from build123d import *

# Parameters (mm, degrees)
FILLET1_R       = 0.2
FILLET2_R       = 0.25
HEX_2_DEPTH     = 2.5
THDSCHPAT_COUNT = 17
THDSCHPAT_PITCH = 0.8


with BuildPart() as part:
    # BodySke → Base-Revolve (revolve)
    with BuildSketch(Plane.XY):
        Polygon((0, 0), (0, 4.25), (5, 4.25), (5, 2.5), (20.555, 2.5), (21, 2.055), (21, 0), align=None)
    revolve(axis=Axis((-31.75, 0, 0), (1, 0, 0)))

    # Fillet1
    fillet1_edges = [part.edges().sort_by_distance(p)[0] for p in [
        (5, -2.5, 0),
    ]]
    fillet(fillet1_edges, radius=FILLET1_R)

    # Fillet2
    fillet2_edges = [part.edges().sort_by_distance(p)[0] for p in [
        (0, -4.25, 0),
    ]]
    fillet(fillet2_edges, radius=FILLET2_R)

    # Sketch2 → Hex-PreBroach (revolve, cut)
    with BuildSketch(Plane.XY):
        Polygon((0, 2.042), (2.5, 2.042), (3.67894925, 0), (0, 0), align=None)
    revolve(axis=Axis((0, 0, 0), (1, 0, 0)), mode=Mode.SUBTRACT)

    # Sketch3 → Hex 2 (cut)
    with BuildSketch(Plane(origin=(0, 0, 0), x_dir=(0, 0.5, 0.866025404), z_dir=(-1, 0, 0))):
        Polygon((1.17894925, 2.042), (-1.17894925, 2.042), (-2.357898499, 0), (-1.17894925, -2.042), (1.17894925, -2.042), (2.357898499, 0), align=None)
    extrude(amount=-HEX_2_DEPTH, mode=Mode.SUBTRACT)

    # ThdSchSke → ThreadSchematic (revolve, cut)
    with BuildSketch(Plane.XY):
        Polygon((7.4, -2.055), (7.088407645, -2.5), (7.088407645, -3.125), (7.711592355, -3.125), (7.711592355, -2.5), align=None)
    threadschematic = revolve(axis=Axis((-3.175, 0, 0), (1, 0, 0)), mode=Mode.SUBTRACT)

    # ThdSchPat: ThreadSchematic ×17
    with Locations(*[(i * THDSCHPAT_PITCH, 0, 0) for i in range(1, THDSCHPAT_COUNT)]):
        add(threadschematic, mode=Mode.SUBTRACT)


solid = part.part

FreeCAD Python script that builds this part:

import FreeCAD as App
import Part
import Sketcher

V = App.Vector
Q = App.Units.Quantity


def edges_at(feature, points):
    """Names of the edges that pass closest to the given points."""
    edges = feature.Shape.Edges
    near = lambda p: min(range(len(edges)), key=lambda i: edges[i].distToShape(Part.Vertex(*p))[0])
    return sorted({f"Edge{near(p) + 1}" for p in points})

doc = App.newDocument("Part")
params = doc.addObject("Spreadsheet::Sheet", "Params")
for row, (alias, value) in enumerate([
    ("sketch1_width", "21 mm"),
    ("sketch1_width2", "5 mm"),
    ("sketch1_height", "4.25 mm"),
    ("sketch1_height2", "1.75 mm"),
    ("revolution_angle", "360 deg"),
    ("fillet_radius", "0.2 mm"),
    ("fillet2_radius", "0.25 mm"),
    ("sketch2_width", "2.5 mm"),
    ("groove_angle", "360 deg"),
    ("pocket1_length", "2.5 mm"),
    ("groove2_angle", "360 deg"),
    ("linearpattern_pitch", "0.8 mm"),
], start=1):
    params.set(f"A{row}", alias)
    params.set(f"B{row}", "=" + value)
    params.setAlias(f"B{row}", alias)

body = doc.addObject("PartDesign::Body", "Body")

sketch1 = body.newObject("Sketcher::SketchObject", "Sketch")
sketch1.AttachmentSupport = (doc.getObject("XY_Plane"), [""])
sketch1.MapMode = "FlatFace"
sketch1.addGeometry(Part.LineSegment(V(0, 4.2, 0), V(0, 0, 0)), False)
sketch1.addGeometry(Part.LineSegment(V(0, 0, 0), V(21, 0, 0)), False)
sketch1.addGeometry(Part.LineSegment(V(21, 0, 0), V(21, 2.1, 0)), False)
sketch1.addGeometry(Part.LineSegment(V(21, 2.1, 0), V(20.6, 2.5, 0)), False)
sketch1.addGeometry(Part.LineSegment(V(20.6, 2.5, 0), V(5, 2.5, 0)), False)
sketch1.addGeometry(Part.LineSegment(V(5, 2.5, 0), V(5, 4.2, 0)), False)
sketch1.addGeometry(Part.LineSegment(V(5, 4.2, 0), V(0, 4.2, 0)), False)
sketch1.addConstraint(Sketcher.Constraint("Coincident", 0, 2, 1, 1))
sketch1.addConstraint(Sketcher.Constraint("Coincident", 1, 2, 2, 1))
sketch1.addConstraint(Sketcher.Constraint("Coincident", 2, 2, 3, 1))
sketch1.addConstraint(Sketcher.Constraint("Coincident", 3, 2, 4, 1))
sketch1.addConstraint(Sketcher.Constraint("Coincident", 4, 2, 5, 1))
sketch1.addConstraint(Sketcher.Constraint("Coincident", 5, 2, 6, 1))
sketch1.addConstraint(Sketcher.Constraint("Coincident", 6, 2, 0, 1))
sketch1.addConstraint(Sketcher.Constraint("Vertical", 0))
sketch1.addConstraint(Sketcher.Constraint("Horizontal", 1))
sketch1.addConstraint(Sketcher.Constraint("Vertical", 2))
sketch1.addConstraint(Sketcher.Constraint("Horizontal", 4))
sketch1.addConstraint(Sketcher.Constraint("Vertical", 5))
sketch1.addConstraint(Sketcher.Constraint("Horizontal", 6))
sketch1.addConstraint(Sketcher.Constraint("Coincident", 0, 2, -1, 1))
sketch1.addConstraint(Sketcher.Constraint("DistanceX", 1, 1, 1, 2, Q("21 mm")))
sketch1.addConstraint(Sketcher.Constraint("DistanceX", 6, 2, 6, 1, Q("5 mm")))
sketch1.addConstraint(Sketcher.Constraint("Angle", 3, Q("135 deg")))
sketch1.addConstraint(Sketcher.Constraint("DistanceY", 0, 2, 0, 1, Q("4.25 mm")))
sketch1.addConstraint(Sketcher.Constraint("DistanceY", 5, 1, 5, 2, Q("1.75 mm")))
sketch1.addConstraint(Sketcher.Constraint("DistanceX", 4, 2, 4, 1, Q("15.555 mm")))
sketch1.setExpression("Constraints[14]", "Params.sketch1_width")
sketch1.setExpression("Constraints[15]", "Params.sketch1_width2")
sketch1.setExpression("Constraints[17]", "Params.sketch1_height")
sketch1.setExpression("Constraints[18]", "Params.sketch1_height2")
revolution = body.newObject("PartDesign::Revolution", "Revolution")
revolution.Profile = sketch1
revolution.ReferenceAxis = (sketch1, ["H_Axis"])
revolution.setExpression("Angle", "Params.revolution_angle")
doc.recompute()

fillet = body.newObject("PartDesign::Fillet", "Fillet")
fillet.Base = (revolution, edges_at(revolution, [(5, -2.5, 0)]))
fillet.setExpression("Radius", "Params.fillet_radius")
doc.recompute()

fillet2 = body.newObject("PartDesign::Fillet", "Fillet001")
fillet2.Base = (fillet, edges_at(fillet, [(0, -4.25, 0)]))
fillet2.setExpression("Radius", "Params.fillet2_radius")

sketch2 = body.newObject("Sketcher::SketchObject", "Sketch001")
sketch2.AttachmentSupport = (doc.getObject("XY_Plane"), [""])
sketch2.MapMode = "FlatFace"
sketch2.addGeometry(Part.LineSegment(V(2.5, 2, 0), V(0, 2, 0)), False)
sketch2.addGeometry(Part.LineSegment(V(0, 2, 0), V(0, 0, 0)), False)
sketch2.addGeometry(Part.LineSegment(V(0, 0, 0), V(3.7, 0, 0)), False)
sketch2.addGeometry(Part.LineSegment(V(3.7, 0, 0), V(2.5, 2, 0)), False)
sketch2.addConstraint(Sketcher.Constraint("Coincident", 0, 2, 1, 1))
sketch2.addConstraint(Sketcher.Constraint("Coincident", 1, 2, 2, 1))
sketch2.addConstraint(Sketcher.Constraint("Coincident", 2, 2, 3, 1))
sketch2.addConstraint(Sketcher.Constraint("Coincident", 3, 2, 0, 1))
sketch2.addConstraint(Sketcher.Constraint("Horizontal", 0))
sketch2.addConstraint(Sketcher.Constraint("Vertical", 1))
sketch2.addConstraint(Sketcher.Constraint("Horizontal", 2))
sketch2.addConstraint(Sketcher.Constraint("Coincident", 1, 2, -1, 1))
sketch2.addConstraint(Sketcher.Constraint("Angle", 3, Q("120 deg")))
sketch2.addConstraint(Sketcher.Constraint("DistanceX", 0, 2, 0, 1, Q("2.5 mm")))
sketch2.addConstraint(Sketcher.Constraint("DistanceY", 1, 2, 1, 1, Q("2.042 mm")))
sketch2.setExpression("Constraints[9]", "Params.sketch2_width")
groove = body.newObject("PartDesign::Groove", "Groove")
groove.Profile = sketch2
groove.ReferenceAxis = (sketch2, ["H_Axis"])
groove.setExpression("Angle", "Params.groove_angle")

sketch3 = body.newObject("Sketcher::SketchObject", "Sketch002")
sketch3.AttachmentSupport = (doc.getObject("YZ_Plane"), [""])
sketch3.MapMode = "FlatFace"
sketch3.addGeometry(Part.LineSegment(V(2.4, 0, 0), V(1.2, -2, 0)), False)
sketch3.addGeometry(Part.LineSegment(V(1.2, -2, 0), V(-1.2, -2, 0)), False)
sketch3.addGeometry(Part.LineSegment(V(-1.2, -2, 0), V(-2.4, 0, 0)), False)
sketch3.addGeometry(Part.LineSegment(V(-2.4, 0, 0), V(-1.2, 2, 0)), False)
sketch3.addGeometry(Part.LineSegment(V(-1.2, 2, 0), V(1.2, 2, 0)), False)
sketch3.addGeometry(Part.LineSegment(V(1.2, 2, 0), V(2.4, 0, 0)), False)
sketch3.addConstraint(Sketcher.Constraint("Coincident", 0, 2, 1, 1))
sketch3.addConstraint(Sketcher.Constraint("Coincident", 1, 2, 2, 1))
sketch3.addConstraint(Sketcher.Constraint("Coincident", 2, 2, 3, 1))
sketch3.addConstraint(Sketcher.Constraint("Coincident", 3, 2, 4, 1))
sketch3.addConstraint(Sketcher.Constraint("Coincident", 4, 2, 5, 1))
sketch3.addConstraint(Sketcher.Constraint("Coincident", 5, 2, 0, 1))
sketch3.addConstraint(Sketcher.Constraint("Horizontal", 1))
sketch3.addConstraint(Sketcher.Constraint("Horizontal", 4))
sketch3.addConstraint(Sketcher.Constraint("Symmetric", 0, 2, 3, 2, -1, 1))
sketch3.addConstraint(Sketcher.Constraint("Symmetric", 2, 2, 5, 2, -1, 1))
sketch3.addConstraint(Sketcher.Constraint("PointOnObject", 2, 2, -1))
sketch3.addConstraint(Sketcher.Constraint("Parallel", 2, 5))
sketch3.addConstraint(Sketcher.Constraint("Vertical", 1, 2, 3, 2))
sketch3.addConstraint(Sketcher.Constraint("Angle", 0, Q("-120 deg")))
sketch3.addConstraint(Sketcher.Constraint("DistanceX", 1, 2, 1, 1, Q("2.357899 mm")))
sketch3.addConstraint(Sketcher.Constraint("DistanceY", 0, 2, -1, 1, Q("2.042 mm")))
pocket1 = body.newObject("PartDesign::Pocket", "Pocket")
pocket1.Profile = sketch3
pocket1.setExpression("Length", "Params.pocket1_length")
pocket1.Reversed = True

sketch4 = body.newObject("Sketcher::SketchObject", "Sketch003")
sketch4.AttachmentSupport = (doc.getObject("XY_Plane"), [""])
sketch4.MapMode = "FlatFace"
sketch4.addGeometry(Part.LineSegment(V(7.4, -2.1, 0), V(7.1, -2.5, 0)), False)
sketch4.addGeometry(Part.LineSegment(V(7.1, -2.5, 0), V(7.1, -3.1, 0)), False)
sketch4.addGeometry(Part.LineSegment(V(7.1, -3.1, 0), V(7.7, -3.1, 0)), False)
sketch4.addGeometry(Part.LineSegment(V(7.7, -3.1, 0), V(7.7, -2.5, 0)), False)
sketch4.addGeometry(Part.LineSegment(V(7.7, -2.5, 0), V(7.4, -2.1, 0)), False)
sketch4.addConstraint(Sketcher.Constraint("Coincident", 0, 2, 1, 1))
sketch4.addConstraint(Sketcher.Constraint("Coincident", 1, 2, 2, 1))
sketch4.addConstraint(Sketcher.Constraint("Coincident", 2, 2, 3, 1))
sketch4.addConstraint(Sketcher.Constraint("Coincident", 3, 2, 4, 1))
sketch4.addConstraint(Sketcher.Constraint("Coincident", 4, 2, 0, 1))
sketch4.addConstraint(Sketcher.Constraint("Vertical", 1))
sketch4.addConstraint(Sketcher.Constraint("Horizontal", 2))
sketch4.addConstraint(Sketcher.Constraint("Vertical", 3))
sketch4.addConstraint(Sketcher.Constraint("Horizontal", 0, 2, 3, 2))
sketch4.addConstraint(Sketcher.Constraint("Equal", 0, 4))
sketch4.addConstraint(Sketcher.Constraint("Angle", 0, Q("-125 deg")))
sketch4.addConstraint(Sketcher.Constraint("DistanceY", 0, 2, -1, 1, Q("2.5 mm")))
sketch4.addConstraint(Sketcher.Constraint("DistanceX", -1, 1, 4, 2, Q("7.4 mm")))
sketch4.addConstraint(Sketcher.Constraint("DistanceY", 1, 2, 1, 1, Q("0.625 mm")))
sketch4.addConstraint(Sketcher.Constraint("DistanceY", 2, 2, 4, 2, Q("1.07 mm")))
groove2 = body.newObject("PartDesign::Groove", "Groove001")
groove2.Profile = sketch4
groove2.ReferenceAxis = (sketch4, ["H_Axis"])
groove2.setExpression("Angle", "Params.groove2_angle")
doc.recompute()

linearpattern = body.newObject("PartDesign::LinearPattern", "LinearPattern")
linearpattern.Originals = [groove2]
linearpattern.Direction = (doc.getObject("X_Axis"), [""])
linearpattern.Mode = "offset"
linearpattern.setExpression("Offset", "Params.linearpattern_pitch")
linearpattern.Occurrences = 17
body.Tip = linearpattern

doc.recompute()
